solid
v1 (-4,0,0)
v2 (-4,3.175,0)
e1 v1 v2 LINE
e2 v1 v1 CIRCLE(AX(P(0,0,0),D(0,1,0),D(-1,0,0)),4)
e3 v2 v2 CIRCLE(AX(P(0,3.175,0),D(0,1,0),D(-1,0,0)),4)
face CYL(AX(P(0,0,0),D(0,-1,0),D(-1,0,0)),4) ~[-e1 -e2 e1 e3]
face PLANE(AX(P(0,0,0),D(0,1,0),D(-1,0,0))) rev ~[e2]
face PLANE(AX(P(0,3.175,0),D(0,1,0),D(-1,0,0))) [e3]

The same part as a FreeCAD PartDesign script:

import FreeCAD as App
import Part
import Sketcher

V = App.Vector
Q = App.Units.Quantity

doc = App.newDocument("Part")
params = doc.addObject("Spreadsheet::Sheet", "Params")
for row, (alias, value) in enumerate([
    ("sketch1_diameter", "8 mm"),
    ("pad1_length", "3.175 mm"),
], start=1):
    params.set(f"A{row}", alias)
    params.set(f"B{row}", "=" + value)
    params.setAlias(f"B{row}", alias)

body = doc.addObject("PartDesign::Body", "Body")

sketch1 = body.newObject("Sketcher::SketchObject", "Sketch")
sketch1.AttachmentSupport = (doc.getObject("XZ_Plane"), [""])
sketch1.MapMode = "FlatFace"
sketch1.addGeometry(Part.Circle(V(0, 0, 0), V(0, 0, 1), 4), False)
sketch1.addConstraint([
    Sketcher.Constraint("Coincident", 0, 3, -1, 1),
    Sketcher.Constraint("Diameter", 0, Q("8 mm")),
])
sketch1.setExpression("Constraints[1]", "Params.sketch1_diameter")
pad1 = body.newObject("PartDesign::Pad", "Pad")
pad1.Profile = sketch1
pad1.setExpression("Length", "Params.pad1_length")
pad1.Reversed = True

doc.recompute()
